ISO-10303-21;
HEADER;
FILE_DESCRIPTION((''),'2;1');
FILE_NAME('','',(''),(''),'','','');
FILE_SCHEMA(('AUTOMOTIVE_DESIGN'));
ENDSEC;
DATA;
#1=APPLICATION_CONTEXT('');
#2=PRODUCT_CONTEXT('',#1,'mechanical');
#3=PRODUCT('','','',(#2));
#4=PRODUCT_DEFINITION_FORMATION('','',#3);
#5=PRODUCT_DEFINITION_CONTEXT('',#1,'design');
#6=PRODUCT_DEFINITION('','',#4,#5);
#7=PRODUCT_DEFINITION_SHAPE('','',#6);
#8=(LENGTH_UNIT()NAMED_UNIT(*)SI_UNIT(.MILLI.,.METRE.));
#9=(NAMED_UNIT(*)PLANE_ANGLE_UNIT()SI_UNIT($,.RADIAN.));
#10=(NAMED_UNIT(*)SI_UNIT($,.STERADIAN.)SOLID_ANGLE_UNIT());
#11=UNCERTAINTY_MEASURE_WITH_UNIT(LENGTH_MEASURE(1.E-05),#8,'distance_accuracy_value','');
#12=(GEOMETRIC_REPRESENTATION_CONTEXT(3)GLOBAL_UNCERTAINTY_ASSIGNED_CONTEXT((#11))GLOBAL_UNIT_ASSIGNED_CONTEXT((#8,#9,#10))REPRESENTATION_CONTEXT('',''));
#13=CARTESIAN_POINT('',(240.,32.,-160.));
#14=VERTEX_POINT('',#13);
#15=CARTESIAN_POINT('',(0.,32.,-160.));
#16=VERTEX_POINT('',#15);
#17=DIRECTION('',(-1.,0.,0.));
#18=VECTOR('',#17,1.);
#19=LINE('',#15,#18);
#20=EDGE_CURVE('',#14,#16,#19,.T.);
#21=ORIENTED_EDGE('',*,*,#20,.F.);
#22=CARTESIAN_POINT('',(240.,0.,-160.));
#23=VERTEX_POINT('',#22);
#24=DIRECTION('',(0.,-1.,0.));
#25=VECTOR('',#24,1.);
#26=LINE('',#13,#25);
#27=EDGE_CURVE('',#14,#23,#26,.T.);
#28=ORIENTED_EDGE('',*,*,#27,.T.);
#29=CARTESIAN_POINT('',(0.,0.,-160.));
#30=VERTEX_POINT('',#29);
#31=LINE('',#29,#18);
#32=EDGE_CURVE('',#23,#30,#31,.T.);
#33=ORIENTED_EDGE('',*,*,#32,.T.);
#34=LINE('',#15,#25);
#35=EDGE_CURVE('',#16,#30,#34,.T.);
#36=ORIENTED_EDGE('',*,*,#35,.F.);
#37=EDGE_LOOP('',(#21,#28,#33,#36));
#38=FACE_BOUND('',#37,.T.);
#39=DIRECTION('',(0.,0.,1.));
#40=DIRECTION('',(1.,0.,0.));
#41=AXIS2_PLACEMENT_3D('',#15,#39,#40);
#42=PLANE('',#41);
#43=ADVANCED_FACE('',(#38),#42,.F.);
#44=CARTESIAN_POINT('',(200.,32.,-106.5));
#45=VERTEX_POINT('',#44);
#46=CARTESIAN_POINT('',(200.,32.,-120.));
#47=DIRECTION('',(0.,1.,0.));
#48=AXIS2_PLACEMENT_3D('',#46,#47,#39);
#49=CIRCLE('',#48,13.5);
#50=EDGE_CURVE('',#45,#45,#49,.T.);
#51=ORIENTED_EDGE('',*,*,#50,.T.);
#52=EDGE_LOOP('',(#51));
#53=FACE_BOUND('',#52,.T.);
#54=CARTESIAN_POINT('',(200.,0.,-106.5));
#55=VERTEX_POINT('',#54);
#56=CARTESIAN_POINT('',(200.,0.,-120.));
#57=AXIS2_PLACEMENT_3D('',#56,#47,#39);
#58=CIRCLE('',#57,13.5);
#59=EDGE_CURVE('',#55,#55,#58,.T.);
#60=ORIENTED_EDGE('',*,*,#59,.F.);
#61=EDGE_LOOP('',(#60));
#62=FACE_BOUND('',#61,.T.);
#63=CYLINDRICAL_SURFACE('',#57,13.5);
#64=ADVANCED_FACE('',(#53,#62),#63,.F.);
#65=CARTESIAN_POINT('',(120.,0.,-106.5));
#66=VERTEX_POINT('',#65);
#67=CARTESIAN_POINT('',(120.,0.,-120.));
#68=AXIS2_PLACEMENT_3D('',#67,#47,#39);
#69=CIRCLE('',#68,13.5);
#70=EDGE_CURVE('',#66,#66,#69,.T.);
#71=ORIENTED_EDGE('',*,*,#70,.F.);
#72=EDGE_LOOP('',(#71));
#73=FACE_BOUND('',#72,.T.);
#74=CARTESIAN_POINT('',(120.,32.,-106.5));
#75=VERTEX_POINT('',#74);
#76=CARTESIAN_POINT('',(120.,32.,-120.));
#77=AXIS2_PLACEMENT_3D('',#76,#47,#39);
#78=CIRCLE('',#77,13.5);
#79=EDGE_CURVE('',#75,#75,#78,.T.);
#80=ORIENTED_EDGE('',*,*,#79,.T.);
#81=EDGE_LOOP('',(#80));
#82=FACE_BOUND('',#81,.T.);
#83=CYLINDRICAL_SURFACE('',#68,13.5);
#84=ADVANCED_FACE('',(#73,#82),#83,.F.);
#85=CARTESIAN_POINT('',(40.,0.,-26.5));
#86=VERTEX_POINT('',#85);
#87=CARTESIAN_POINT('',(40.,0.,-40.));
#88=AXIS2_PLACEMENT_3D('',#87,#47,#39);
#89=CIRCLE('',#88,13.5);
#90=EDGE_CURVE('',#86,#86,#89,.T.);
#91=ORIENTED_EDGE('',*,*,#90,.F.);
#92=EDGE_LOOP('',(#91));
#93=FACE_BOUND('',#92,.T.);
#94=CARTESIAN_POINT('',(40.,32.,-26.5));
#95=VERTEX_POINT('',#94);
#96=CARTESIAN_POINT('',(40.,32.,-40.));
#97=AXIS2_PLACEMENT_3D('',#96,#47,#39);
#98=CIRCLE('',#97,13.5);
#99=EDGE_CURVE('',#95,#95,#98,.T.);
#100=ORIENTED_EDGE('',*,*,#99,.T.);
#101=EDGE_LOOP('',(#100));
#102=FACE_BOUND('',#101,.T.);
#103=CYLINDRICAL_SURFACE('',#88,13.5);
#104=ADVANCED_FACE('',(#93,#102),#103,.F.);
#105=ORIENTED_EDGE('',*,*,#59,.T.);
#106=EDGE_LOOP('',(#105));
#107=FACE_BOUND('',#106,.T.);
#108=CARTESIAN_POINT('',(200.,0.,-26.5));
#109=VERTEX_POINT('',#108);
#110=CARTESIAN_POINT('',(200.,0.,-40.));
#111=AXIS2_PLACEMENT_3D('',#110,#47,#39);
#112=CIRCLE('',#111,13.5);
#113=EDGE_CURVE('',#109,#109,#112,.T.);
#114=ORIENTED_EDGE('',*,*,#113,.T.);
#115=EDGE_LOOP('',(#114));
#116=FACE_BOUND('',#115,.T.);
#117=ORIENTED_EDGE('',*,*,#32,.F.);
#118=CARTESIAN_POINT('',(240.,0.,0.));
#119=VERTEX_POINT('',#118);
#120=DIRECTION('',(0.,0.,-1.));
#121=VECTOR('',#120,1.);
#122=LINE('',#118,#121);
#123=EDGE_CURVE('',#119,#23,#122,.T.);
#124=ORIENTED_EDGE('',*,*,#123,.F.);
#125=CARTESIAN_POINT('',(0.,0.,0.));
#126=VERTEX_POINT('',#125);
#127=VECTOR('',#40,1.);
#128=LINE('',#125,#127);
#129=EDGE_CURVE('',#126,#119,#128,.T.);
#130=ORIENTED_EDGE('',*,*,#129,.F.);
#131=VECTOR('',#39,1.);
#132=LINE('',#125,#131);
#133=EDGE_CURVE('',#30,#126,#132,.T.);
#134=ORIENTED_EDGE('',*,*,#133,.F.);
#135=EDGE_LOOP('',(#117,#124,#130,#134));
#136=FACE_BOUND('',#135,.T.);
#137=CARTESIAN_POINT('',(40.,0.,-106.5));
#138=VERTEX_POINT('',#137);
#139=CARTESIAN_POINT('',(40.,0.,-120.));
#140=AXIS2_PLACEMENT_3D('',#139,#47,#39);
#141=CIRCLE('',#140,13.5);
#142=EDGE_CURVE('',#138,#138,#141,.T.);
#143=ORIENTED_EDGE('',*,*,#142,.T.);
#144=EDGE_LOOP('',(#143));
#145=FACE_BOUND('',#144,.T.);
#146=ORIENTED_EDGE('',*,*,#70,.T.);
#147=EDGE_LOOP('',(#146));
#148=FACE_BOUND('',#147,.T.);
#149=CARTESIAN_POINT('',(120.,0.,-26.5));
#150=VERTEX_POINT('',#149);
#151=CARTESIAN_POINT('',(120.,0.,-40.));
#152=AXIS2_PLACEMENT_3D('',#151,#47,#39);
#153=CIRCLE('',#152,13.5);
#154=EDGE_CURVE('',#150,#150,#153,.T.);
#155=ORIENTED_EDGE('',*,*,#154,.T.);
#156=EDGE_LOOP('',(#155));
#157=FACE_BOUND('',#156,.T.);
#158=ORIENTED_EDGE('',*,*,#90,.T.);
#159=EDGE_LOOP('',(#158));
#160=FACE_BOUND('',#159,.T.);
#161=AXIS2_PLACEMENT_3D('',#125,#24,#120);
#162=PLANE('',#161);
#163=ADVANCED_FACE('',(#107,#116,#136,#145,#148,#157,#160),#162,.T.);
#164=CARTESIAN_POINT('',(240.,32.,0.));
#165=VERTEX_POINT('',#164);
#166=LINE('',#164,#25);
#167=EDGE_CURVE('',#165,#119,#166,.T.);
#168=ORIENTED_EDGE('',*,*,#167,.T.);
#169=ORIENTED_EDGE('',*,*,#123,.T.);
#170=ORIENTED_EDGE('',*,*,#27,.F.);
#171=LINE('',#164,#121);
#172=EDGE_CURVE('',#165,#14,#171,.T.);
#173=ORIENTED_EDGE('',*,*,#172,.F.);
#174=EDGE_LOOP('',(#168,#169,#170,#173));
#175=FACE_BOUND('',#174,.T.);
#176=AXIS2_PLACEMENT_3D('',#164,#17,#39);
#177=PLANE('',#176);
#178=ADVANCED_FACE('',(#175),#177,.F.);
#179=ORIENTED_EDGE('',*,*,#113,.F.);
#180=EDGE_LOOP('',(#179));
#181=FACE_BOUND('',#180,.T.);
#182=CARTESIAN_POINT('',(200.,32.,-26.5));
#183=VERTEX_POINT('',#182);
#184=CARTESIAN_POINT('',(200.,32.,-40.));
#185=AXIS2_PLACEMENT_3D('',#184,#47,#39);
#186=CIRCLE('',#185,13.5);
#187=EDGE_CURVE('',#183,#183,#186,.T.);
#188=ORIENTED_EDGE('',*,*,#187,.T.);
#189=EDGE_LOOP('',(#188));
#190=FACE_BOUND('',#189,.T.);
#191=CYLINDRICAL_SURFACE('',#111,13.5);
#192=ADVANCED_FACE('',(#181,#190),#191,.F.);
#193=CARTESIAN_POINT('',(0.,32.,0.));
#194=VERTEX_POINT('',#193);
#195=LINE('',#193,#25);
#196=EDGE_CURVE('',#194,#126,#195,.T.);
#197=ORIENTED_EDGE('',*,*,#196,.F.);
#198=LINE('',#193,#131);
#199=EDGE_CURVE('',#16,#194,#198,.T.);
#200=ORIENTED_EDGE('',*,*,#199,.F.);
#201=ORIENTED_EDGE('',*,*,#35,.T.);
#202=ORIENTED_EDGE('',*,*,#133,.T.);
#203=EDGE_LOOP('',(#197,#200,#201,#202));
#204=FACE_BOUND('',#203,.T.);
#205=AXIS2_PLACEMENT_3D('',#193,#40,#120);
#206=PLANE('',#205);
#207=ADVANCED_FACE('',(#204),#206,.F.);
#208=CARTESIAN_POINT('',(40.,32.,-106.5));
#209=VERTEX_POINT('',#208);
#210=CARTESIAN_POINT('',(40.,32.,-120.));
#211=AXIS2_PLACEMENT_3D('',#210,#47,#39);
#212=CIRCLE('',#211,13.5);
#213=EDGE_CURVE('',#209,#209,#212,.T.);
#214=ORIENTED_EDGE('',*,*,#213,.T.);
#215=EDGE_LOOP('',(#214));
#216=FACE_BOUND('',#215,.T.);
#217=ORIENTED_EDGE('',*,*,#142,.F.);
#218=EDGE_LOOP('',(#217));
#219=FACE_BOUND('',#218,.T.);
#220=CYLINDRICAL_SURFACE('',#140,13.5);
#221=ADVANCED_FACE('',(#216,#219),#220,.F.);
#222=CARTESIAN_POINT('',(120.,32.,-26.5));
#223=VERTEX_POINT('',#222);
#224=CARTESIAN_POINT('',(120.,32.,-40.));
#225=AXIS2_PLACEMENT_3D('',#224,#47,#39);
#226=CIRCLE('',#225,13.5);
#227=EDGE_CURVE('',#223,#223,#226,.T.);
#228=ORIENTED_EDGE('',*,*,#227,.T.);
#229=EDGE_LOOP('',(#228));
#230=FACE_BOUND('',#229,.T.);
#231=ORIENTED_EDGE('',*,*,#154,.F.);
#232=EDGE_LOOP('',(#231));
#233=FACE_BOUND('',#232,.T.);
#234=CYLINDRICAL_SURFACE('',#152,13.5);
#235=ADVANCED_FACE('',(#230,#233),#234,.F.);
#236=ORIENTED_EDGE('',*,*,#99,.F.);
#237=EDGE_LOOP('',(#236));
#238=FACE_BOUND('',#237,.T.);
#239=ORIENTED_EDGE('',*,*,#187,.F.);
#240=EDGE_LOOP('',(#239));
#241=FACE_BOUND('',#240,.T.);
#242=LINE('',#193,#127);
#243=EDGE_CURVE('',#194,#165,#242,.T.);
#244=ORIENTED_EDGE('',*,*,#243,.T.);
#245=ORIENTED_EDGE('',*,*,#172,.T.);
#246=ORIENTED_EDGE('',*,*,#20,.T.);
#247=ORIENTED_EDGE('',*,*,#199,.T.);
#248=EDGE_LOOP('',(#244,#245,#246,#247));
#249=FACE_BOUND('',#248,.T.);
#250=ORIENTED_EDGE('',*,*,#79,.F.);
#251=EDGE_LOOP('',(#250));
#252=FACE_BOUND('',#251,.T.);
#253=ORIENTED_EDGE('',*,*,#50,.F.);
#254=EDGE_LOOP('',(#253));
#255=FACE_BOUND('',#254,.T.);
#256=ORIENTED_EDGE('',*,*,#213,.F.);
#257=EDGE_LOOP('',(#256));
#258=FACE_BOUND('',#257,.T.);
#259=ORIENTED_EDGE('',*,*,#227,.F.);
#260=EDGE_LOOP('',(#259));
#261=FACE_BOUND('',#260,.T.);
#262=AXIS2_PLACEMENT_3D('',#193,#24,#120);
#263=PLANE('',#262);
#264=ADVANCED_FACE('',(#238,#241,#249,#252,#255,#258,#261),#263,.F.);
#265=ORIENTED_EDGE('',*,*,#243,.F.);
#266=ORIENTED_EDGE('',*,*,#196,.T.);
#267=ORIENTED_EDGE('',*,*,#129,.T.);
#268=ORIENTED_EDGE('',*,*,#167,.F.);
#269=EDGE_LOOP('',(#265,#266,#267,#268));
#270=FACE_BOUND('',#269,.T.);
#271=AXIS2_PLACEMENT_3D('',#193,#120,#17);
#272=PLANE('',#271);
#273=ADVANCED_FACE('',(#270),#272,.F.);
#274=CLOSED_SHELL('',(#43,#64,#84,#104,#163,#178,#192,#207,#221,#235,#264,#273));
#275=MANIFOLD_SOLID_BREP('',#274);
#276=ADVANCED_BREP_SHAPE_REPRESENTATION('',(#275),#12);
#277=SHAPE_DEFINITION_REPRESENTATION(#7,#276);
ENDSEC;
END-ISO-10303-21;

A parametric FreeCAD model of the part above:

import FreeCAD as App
import Part
import Sketcher

V = App.Vector
Q = App.Units.Quantity


def add_polygon(sketch, points):
    """Adds a closed chain of lines whose ends are joined by coincident constraints."""
    first, n = sketch.GeometryCount, len(points)
    for a, b in zip(points, points[1:] + points[:1]):
        sketch.addGeometry(Part.LineSegment(App.Vector(*a, 0), App.Vector(*b, 0)), False)
    for i in range(n):
        sketch.addConstraint(Sketcher.Constraint("Coincident", first + i, 2, first + (i + 1) % n, 1))

doc = App.newDocument("Part")
params = doc.addObject("Spreadsheet::Sheet", "Params")
for row, (alias, value) in enumerate([
    ("sketch1_width", "240 mm"),
    ("sketch1_height", "160 mm"),
    ("pad1_length", "32 mm"),
    ("sketch2_diameter", "27 mm"),
    ("linearpattern_pitch", "80 mm"),
    ("linearpattern2_pitch", "80 mm"),
    ("linearpattern3_pitch", "80 mm"),
    ("sketch3_diameter", "27 mm"),
    ("sketch4_diameter", "27 mm"),
], start=1):
    params.set(f"A{row}", alias)
    params.set(f"B{row}", "=" + value)
    params.setAlias(f"B{row}", alias)

body = doc.addObject("PartDesign::Body", "Body")

# Sketch on XZ plane
sketch1 = body.newObject("Sketcher::SketchObject", "Sketch")
sketch1.AttachmentSupport = (doc.getObject("XZ_Plane"), [""])
sketch1.MapMode = "FlatFace"
add_polygon(sketch1, [(0, -160), (0, 0), (240, 0), (240, -160)])  # lines 0-3
sketch1.addConstraint(Sketcher.Constraint("Vertical", 0))
sketch1.addConstraint(Sketcher.Constraint("Horizontal", 1))
sketch1.addConstraint(Sketcher.Constraint("Vertical", 2))
sketch1.addConstraint(Sketcher.Constraint("Horizontal", 3))
sketch1.addConstraint(Sketcher.Constraint("Coincident", 0, 2, -1, 1))
sketch1.addConstraint(Sketcher.Constraint("DistanceX", 1, 1, 1, 2, Q("240 mm")))
sketch1.addConstraint(Sketcher.Constraint("DistanceY", 0, 1, 0, 2, Q("160 mm")))
sketch1.setExpression("Constraints[9]", "Params.sketch1_width")
sketch1.setExpression("Constraints[10]", "Params.sketch1_height")
pad1 = body.newObject("PartDesign::Pad", "Pad")
pad1.Profile = sketch1
pad1.setExpression("Length", "Params.pad1_length")
pad1.Reversed = True

# Sketch on XZ plane
sketch2 = body.newObject("Sketcher::SketchObject", "Sketch001")
sketch2.AttachmentSupport = (doc.getObject("XZ_Plane"), [""])
sketch2.MapMode = "FlatFace"
sketch2.AttachmentOffset = App.Placement(V(0, 0, -32), App.Rotation())
sketch2.addGeometry(Part.Circle(V(120, -120, 0), V(0, 0, 1), 14), False)
sketch2.addConstraint(Sketcher.Constraint("Diameter", 0, Q("27 mm")))
sketch2.addConstraint(Sketcher.Constraint("DistanceX", -1, 1, 0, 3, Q("120 mm")))
sketch2.addConstraint(Sketcher.Constraint("DistanceY", 0, 3, -1, 1, Q("120 mm")))
sketch2.setExpression("Constraints[0]", "Params.sketch2_diameter")
pocket1 = body.newObject("PartDesign::Pocket", "Pocket")
pocket1.Profile = sketch2
pocket1.Type = "ThroughAll"
pocket1.Reversed = True
doc.recompute()

linearpattern = body.newObject("PartDesign::LinearPattern", "LinearPattern")
linearpattern.Originals = [pocket1]
linearpattern.Direction = (doc.getObject("X_Axis"), [""])
linearpattern.Mode = "offset"
linearpattern.setExpression("Offset", "Params.linearpattern_pitch")
linearpattern.Occurrences = 2
linearpattern.Reversed = True
body.Tip = linearpattern
doc.recompute()

linearpattern2 = body.newObject("PartDesign::LinearPattern", "LinearPattern001")
linearpattern2.Originals = [pocket1]
linearpattern2.Direction = (doc.getObject("X_Axis"), [""])
linearpattern2.Mode = "offset"
linearpattern2.setExpression("Offset", "Params.linearpattern2_pitch")
linearpattern2.Occurrences = 2
body.Tip = linearpattern2
doc.recompute()

linearpattern3 = body.newObject("PartDesign::LinearPattern", "LinearPattern002")
linearpattern3.Originals = [pocket1]
linearpattern3.Direction = (doc.getObject("Z_Axis"), [""])
linearpattern3.Mode = "offset"
linearpattern3.setExpression("Offset", "Params.linearpattern3_pitch")
linearpattern3.Occurrences = 2
body.Tip = linearpattern3

# Sketch on XZ plane
sketch3 = body.newObject("Sketcher::SketchObject", "Sketch002")
sketch3.AttachmentSupport = (doc.getObject("XZ_Plane"), [""])
sketch3.MapMode = "FlatFace"
sketch3.AttachmentOffset = App.Placement(V(0, 0, -32), App.Rotation())
sketch3.addGeometry(Part.Circle(V(40, -40, 0), V(0, 0, 1), 14), False)
sketch3.addConstraint(Sketcher.Constraint("Diameter", 0, Q("27 mm")))
sketch3.addConstraint(Sketcher.Constraint("DistanceX", -1, 1, 0, 3, Q("40 mm")))
sketch3.addConstraint(Sketcher.Constraint("DistanceY", 0, 3, -1, 1, Q("40 mm")))
sketch3.setExpression("Constraints[0]", "Params.sketch3_diameter")
pocket2 = body.newObject("PartDesign::Pocket", "Pocket001")
pocket2.Profile = sketch3
pocket2.Type = "ThroughAll"
pocket2.Reversed = True

# Sketch on XZ plane
sketch4 = body.newObject("Sketcher::SketchObject", "Sketch003")
sketch4.AttachmentSupport = (doc.getObject("XZ_Plane"), [""])
sketch4.MapMode = "FlatFace"
sketch4.AttachmentOffset = App.Placement(V(0, 0, -32), App.Rotation())
sketch4.addGeometry(Part.Circle(V(200, -40, 0), V(0, 0, 1), 14), False)
sketch4.addConstraint(Sketcher.Constraint("Diameter", 0, Q("27 mm")))
sketch4.addConstraint(Sketcher.Constraint("DistanceX", -1, 1, 0, 3, Q("200 mm")))
sketch4.addConstraint(Sketcher.Constraint("DistanceY", 0, 3, -1, 1, Q("40 mm")))
sketch4.setExpression("Constraints[0]", "Params.sketch4_diameter")
pocket3 = body.newObject("PartDesign::Pocket", "Pocket002")
pocket3.Profile = sketch4
pocket3.Type = "ThroughAll"
pocket3.Reversed = True

doc.recompute()
